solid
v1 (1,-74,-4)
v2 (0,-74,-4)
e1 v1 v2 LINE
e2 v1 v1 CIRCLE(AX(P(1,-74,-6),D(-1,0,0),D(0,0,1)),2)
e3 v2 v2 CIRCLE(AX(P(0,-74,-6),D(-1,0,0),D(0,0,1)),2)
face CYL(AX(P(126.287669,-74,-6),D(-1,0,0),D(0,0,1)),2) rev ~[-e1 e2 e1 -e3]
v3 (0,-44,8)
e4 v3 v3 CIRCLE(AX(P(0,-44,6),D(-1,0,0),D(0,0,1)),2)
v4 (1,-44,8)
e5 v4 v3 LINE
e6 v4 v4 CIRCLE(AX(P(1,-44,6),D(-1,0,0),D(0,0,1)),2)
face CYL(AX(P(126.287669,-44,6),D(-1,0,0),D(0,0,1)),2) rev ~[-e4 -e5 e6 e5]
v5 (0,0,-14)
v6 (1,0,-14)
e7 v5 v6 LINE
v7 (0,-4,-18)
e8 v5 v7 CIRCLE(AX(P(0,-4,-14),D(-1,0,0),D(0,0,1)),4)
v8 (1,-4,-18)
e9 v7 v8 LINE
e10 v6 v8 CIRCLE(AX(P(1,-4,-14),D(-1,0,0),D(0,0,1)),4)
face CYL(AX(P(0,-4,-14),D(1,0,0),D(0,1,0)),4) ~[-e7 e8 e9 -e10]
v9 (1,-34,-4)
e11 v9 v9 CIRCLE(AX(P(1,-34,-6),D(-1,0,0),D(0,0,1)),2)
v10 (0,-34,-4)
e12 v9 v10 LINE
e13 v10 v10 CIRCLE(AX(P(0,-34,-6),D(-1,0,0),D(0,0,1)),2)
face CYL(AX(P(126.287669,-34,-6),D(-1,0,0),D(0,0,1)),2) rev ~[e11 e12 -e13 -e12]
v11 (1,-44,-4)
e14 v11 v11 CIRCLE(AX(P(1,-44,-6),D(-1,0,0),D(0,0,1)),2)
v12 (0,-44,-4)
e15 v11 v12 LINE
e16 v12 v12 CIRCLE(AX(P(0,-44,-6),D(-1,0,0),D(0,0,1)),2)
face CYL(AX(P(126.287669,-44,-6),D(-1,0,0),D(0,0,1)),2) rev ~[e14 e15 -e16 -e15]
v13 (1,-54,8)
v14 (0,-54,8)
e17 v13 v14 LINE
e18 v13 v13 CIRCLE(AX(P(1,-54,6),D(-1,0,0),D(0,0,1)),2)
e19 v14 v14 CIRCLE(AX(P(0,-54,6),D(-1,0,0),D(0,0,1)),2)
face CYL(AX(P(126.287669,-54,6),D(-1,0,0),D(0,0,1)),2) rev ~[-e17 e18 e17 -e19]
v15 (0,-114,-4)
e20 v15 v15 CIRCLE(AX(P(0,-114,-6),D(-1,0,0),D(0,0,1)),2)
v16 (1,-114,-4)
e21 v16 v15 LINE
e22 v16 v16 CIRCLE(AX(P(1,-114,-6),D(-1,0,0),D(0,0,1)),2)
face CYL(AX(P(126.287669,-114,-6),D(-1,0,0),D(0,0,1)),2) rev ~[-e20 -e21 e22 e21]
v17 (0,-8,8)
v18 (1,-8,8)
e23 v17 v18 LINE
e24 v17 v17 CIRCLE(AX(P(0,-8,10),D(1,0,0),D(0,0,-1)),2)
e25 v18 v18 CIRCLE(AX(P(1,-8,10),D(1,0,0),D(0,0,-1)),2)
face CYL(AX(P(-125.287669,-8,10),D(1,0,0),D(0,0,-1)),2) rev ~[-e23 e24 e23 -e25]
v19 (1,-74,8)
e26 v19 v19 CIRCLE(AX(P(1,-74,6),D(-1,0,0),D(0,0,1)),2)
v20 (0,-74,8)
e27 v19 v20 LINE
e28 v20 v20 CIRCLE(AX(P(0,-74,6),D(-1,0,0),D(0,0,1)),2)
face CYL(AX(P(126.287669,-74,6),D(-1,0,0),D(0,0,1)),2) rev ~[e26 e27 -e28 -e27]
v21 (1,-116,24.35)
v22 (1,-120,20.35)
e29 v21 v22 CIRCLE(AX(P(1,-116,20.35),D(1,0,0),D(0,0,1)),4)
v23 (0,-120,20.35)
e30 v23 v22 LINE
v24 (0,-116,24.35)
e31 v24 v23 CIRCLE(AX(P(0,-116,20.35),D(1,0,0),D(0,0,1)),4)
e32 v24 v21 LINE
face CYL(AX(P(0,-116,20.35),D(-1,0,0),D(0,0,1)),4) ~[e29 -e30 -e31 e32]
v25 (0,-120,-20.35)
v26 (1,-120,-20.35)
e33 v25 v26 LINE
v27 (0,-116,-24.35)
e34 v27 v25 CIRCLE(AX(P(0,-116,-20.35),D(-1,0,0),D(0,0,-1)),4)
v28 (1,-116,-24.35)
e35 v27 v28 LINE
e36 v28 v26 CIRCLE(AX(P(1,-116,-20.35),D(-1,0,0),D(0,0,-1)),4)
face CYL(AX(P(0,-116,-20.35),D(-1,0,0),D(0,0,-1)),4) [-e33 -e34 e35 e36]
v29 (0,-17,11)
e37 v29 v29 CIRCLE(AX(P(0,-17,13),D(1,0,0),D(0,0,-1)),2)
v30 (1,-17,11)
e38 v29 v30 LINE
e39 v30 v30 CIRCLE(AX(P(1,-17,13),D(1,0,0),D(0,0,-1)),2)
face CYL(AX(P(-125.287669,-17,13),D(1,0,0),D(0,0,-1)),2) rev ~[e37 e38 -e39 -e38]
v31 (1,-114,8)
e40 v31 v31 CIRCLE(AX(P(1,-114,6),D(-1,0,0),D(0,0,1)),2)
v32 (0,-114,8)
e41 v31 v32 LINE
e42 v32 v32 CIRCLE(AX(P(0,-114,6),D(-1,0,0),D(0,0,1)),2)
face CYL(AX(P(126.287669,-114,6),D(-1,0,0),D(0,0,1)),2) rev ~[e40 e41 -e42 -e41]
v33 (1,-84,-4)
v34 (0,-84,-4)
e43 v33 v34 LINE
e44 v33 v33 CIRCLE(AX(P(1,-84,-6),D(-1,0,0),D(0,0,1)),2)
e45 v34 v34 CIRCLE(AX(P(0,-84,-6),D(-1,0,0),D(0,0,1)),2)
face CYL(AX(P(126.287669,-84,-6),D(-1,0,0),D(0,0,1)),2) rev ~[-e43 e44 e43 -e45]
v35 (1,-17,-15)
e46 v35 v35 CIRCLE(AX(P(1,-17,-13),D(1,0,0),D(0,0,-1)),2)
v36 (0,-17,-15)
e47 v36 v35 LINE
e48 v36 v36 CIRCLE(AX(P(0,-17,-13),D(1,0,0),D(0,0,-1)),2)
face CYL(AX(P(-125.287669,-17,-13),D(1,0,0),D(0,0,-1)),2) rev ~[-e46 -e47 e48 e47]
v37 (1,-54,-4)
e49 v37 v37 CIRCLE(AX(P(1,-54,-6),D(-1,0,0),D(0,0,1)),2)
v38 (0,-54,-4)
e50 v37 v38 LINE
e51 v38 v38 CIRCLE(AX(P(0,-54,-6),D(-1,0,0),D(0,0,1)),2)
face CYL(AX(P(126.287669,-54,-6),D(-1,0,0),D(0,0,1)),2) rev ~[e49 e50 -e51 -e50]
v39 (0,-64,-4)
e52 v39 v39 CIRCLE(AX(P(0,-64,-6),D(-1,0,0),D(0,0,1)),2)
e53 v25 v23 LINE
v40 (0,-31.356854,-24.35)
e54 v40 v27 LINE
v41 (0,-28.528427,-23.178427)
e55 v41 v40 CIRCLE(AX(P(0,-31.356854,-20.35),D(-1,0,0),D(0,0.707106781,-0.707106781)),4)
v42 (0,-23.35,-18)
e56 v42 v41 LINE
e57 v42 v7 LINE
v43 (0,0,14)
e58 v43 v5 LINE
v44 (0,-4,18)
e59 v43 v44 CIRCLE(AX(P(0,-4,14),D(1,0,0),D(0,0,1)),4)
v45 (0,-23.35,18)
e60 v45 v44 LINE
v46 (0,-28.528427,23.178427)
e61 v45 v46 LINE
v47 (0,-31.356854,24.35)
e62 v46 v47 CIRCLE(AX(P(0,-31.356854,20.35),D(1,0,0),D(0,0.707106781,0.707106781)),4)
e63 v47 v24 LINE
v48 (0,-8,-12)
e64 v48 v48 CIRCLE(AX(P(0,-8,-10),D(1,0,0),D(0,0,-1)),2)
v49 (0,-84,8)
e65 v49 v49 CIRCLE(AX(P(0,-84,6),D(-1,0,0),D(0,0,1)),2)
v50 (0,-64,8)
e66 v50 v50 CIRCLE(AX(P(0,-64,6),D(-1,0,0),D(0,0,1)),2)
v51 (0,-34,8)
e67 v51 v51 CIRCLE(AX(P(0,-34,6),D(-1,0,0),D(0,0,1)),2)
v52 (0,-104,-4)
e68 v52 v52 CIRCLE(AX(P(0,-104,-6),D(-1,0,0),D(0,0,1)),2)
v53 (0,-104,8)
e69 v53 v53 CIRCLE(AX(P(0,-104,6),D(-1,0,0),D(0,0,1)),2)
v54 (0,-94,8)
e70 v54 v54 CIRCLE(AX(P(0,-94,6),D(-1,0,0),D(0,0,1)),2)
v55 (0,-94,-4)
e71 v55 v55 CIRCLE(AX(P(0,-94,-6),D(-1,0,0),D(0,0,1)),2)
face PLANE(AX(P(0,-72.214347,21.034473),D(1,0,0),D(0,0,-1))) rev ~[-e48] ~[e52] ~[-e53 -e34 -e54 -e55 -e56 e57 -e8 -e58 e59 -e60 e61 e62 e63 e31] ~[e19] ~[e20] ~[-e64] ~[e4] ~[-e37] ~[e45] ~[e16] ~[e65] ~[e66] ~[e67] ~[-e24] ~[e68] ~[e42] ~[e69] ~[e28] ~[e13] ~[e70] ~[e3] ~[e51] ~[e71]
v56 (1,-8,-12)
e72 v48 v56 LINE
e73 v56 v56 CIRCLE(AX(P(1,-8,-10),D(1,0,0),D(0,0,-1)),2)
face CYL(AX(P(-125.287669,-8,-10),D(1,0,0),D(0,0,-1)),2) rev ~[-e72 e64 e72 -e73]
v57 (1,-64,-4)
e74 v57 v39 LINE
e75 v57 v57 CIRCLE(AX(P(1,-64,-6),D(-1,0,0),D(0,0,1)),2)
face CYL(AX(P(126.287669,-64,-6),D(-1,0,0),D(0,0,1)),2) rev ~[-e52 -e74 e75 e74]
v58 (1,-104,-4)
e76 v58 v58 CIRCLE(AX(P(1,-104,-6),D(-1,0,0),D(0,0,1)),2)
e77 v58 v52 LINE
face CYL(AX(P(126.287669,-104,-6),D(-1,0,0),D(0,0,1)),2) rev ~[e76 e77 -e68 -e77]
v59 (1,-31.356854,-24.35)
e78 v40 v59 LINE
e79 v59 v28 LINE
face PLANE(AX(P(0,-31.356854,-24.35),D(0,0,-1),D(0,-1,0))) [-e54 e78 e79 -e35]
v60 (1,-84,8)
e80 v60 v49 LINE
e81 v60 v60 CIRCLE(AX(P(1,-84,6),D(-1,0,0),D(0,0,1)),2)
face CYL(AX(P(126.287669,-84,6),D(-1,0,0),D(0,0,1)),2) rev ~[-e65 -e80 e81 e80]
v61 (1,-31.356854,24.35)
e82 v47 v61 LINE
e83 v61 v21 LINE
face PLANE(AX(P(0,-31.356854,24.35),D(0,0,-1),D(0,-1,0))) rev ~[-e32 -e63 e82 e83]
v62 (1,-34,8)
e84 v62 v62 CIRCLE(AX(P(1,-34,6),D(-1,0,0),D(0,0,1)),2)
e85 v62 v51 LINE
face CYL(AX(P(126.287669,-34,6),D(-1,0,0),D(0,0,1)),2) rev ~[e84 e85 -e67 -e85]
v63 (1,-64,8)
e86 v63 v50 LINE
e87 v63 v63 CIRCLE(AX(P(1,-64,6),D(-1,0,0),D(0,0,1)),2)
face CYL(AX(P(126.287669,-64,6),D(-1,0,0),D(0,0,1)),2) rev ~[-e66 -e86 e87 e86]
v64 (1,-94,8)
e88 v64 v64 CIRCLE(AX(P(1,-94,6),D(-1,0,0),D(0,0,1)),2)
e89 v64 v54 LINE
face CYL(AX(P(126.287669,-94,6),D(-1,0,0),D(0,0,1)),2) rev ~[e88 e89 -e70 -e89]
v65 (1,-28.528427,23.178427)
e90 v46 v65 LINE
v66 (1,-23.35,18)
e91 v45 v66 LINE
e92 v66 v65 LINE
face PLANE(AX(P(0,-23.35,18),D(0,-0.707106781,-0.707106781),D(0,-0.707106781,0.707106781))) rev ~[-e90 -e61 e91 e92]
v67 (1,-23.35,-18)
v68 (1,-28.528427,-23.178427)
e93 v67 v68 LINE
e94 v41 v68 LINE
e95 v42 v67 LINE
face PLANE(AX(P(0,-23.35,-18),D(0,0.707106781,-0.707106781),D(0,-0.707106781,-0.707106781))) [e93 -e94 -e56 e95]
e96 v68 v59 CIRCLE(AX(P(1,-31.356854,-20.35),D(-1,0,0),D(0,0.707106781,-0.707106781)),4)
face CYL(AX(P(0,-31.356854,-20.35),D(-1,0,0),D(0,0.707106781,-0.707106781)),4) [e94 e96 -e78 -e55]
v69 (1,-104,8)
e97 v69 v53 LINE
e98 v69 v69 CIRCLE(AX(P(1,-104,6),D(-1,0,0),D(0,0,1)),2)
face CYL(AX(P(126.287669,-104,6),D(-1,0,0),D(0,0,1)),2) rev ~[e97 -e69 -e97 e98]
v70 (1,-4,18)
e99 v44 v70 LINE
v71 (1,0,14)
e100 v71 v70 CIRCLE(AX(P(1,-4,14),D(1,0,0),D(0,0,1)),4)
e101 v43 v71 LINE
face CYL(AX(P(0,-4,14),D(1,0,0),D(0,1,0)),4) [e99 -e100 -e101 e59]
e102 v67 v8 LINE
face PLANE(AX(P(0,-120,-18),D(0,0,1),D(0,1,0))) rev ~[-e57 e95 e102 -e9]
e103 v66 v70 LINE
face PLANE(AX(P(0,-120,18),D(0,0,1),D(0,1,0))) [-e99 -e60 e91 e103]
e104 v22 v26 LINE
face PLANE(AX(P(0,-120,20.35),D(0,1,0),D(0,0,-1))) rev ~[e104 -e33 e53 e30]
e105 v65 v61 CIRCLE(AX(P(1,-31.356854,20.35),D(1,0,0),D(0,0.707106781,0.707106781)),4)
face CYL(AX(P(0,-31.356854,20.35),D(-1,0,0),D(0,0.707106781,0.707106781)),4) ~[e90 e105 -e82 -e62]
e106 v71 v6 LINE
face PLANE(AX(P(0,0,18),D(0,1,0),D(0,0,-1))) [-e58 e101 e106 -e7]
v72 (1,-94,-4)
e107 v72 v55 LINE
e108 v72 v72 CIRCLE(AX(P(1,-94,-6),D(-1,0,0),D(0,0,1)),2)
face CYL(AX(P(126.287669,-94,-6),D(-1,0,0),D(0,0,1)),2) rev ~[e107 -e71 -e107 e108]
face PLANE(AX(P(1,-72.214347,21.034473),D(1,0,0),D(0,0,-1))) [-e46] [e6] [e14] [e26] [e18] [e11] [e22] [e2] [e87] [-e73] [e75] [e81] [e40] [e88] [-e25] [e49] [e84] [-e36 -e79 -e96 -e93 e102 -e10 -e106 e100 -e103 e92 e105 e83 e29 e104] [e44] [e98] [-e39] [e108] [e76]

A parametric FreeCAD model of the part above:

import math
import FreeCAD as App
import Part
import Sketcher
from FreeCAD import Vector
Q = App.Units.Quantity


def edges_at(feature, points):
    """Names of the edges that pass closest to the given points."""
    edges = feature.Shape.Edges
    near = lambda p: min(range(len(edges)), key=lambda i: edges[i].distToShape(Part.Vertex(*p))[0])
    return sorted({f"Edge{near(p) + 1}" for p in points})

doc = App.newDocument("Part")
body = doc.addObject("PartDesign::Body", "Body")

# Sketch on YZ plane
sketch1 = doc.addObject("Sketcher::SketchObject", "Sketch")
body.addObject(sketch1)
sketch1.AttachmentSupport = (doc.YZ_Plane, [""])
sketch1.MapMode = "FlatFace"
sketch1.addGeometry(Part.LineSegment(Vector(0, 18, 0), Vector(-120, 18, 0)), False)
sketch1.addGeometry(Part.LineSegment(Vector(-120, 18, 0), Vector(-120, -18, 0)), False)
sketch1.addGeometry(Part.LineSegment(Vector(-120, -18, 0), Vector(0, -18, 0)), False)
sketch1.addGeometry(Part.LineSegment(Vector(0, -18, 0), Vector(0, 18, 0)), False)
sketch1.addConstraint(Sketcher.Constraint("Coincident", 0, 2, 1, 1))
sketch1.addConstraint(Sketcher.Constraint("Coincident", 1, 2, 2, 1))
sketch1.addConstraint(Sketcher.Constraint("Coincident", 2, 2, 3, 1))
sketch1.addConstraint(Sketcher.Constraint("Coincident", 3, 2, 0, 1))
sketch1.addConstraint(Sketcher.Constraint("Horizontal", 0))
sketch1.addConstraint(Sketcher.Constraint("Vertical", 1))
sketch1.addConstraint(Sketcher.Constraint("Horizontal", 2))
sketch1.addConstraint(Sketcher.Constraint("Vertical", 3))
sketch1.addConstraint(Sketcher.Constraint("Symmetric", 2, 2, 3, 2, -1, 1))
sketch1.addConstraint(Sketcher.Constraint("DistanceX", 0, 2, 0, 1, Q("120 mm")))
sketch1.addConstraint(Sketcher.Constraint("DistanceY", 1, 2, 1, 1, Q("36 mm")))
pad1 = doc.addObject("PartDesign::Pad", "Pad")
body.addObject(pad1)
pad1.Profile = sketch1
pad1.Length = 1

# Sketch on YZ plane
sketch2 = doc.addObject("Sketcher::SketchObject", "Sketch001")
body.addObject(sketch2)
sketch2.AttachmentSupport = (doc.YZ_Plane, [""])
sketch2.MapMode = "FlatFace"
sketch2.addGeometry(Part.Circle(Vector(-8, -10, 0), Vector(0, 0, 1), 2), False)
sketch2.addGeometry(Part.Circle(Vector(-8, 10, 0), Vector(0, 0, 1), 2), False)
sketch2.addConstraint(Sketcher.Constraint("Equal", 0, 1))
sketch2.addConstraint(Sketcher.Constraint("Symmetric", 0, 3, 1, 3, -1))
sketch2.addConstraint(Sketcher.Constraint("Diameter", 0, Q("4 mm")))
sketch2.addConstraint(Sketcher.Constraint("DistanceX", 0, 3, -1, 1, Q("8 mm")))
sketch2.addConstraint(Sketcher.Constraint("DistanceY", 0, 3, -1, 1, Q("10 mm")))
doc.recompute()
hole = doc.addObject("PartDesign::Hole", "Hole")
body.addObject(hole)
hole.Profile = sketch2
hole.ThreadType = "None"
hole.Diameter = 4
hole.DepthType = "ThroughAll"
hole.Reversed = True

# Sketch on YZ plane
sketch3 = doc.addObject("Sketcher::SketchObject", "Sketch002")
body.addObject(sketch3)
sketch3.AttachmentSupport = (doc.YZ_Plane, [""])
sketch3.MapMode = "FlatFace"
sketch3.addGeometry(Part.Circle(Vector(-17, -13, 0), Vector(0, 0, 1), 2), False)
sketch3.addGeometry(Part.Circle(Vector(-17, 13, 0), Vector(0, 0, 1), 2), False)
sketch3.addConstraint(Sketcher.Constraint("Equal", 0, 1))
sketch3.addConstraint(Sketcher.Constraint("Symmetric", 0, 3, 1, 3, -1))
sketch3.addConstraint(Sketcher.Constraint("Diameter", 0, Q("4 mm")))
sketch3.addConstraint(Sketcher.Constraint("DistanceX", 0, 3, -1, 1, Q("17 mm")))
sketch3.addConstraint(Sketcher.Constraint("DistanceY", 0, 3, -1, 1, Q("13 mm")))
doc.recompute()
hole2 = doc.addObject("PartDesign::Hole", "Hole001")
body.addObject(hole2)
hole2.Profile = sketch3
hole2.ThreadType = "None"
hole2.Diameter = 4
hole2.DepthType = "ThroughAll"
hole2.Reversed = True

# Sketch on YZ plane
sketch4 = doc.addObject("Sketcher::SketchObject", "Sketch003")
body.addObject(sketch4)
sketch4.AttachmentSupport = (doc.YZ_Plane, [""])
sketch4.MapMode = "FlatFace"
sketch4.AttachmentOffset = App.Placement(Vector(0, 0, 1), App.Rotation())
sketch4.addGeometry(Part.Circle(Vector(-114, -6, 0), Vector(0, 0, 1), 2), False)
sketch4.addGeometry(Part.Circle(Vector(-114, 6, 0), Vector(0, 0, 1), 2), False)
sketch4.addGeometry(Part.Circle(Vector(-104, -6, 0), Vector(0, 0, 1), 2), False)
sketch4.addGeometry(Part.Circle(Vector(-104, 6, 0), Vector(0, 0, 1), 2), False)
sketch4.addGeometry(Part.Circle(Vector(-94, -6, 0), Vector(0, 0, 1), 2), False)
sketch4.addGeometry(Part.Circle(Vector(-94, 6, 0), Vector(0, 0, 1), 2), False)
sketch4.addGeometry(Part.Circle(Vector(-84, -6, 0), Vector(0, 0, 1), 2), False)
sketch4.addGeometry(Part.Circle(Vector(-84, 6, 0), Vector(0, 0, 1), 2), False)
sketch4.addGeometry(Part.Circle(Vector(-74, -6, 0), Vector(0, 0, 1), 2), False)
sketch4.addGeometry(Part.Circle(Vector(-74, 6, 0), Vector(0, 0, 1), 2), False)
sketch4.addGeometry(Part.Circle(Vector(-64, -6, 0), Vector(0, 0, 1), 2), False)
sketch4.addGeometry(Part.Circle(Vector(-64, 6, 0), Vector(0, 0, 1), 2), False)
sketch4.addGeometry(Part.Circle(Vector(-54, -6, 0), Vector(0, 0, 1), 2), False)
sketch4.addGeometry(Part.Circle(Vector(-54, 6, 0), Vector(0, 0, 1), 2), False)
sketch4.addGeometry(Part.Circle(Vector(-44, -6, 0), Vector(0, 0, 1), 2), False)
sketch4.addGeometry(Part.Circle(Vector(-44, 6, 0), Vector(0, 0, 1), 2), False)
sketch4.addGeometry(Part.Circle(Vector(-34, -6, 0), Vector(0, 0, 1), 2), False)
sketch4.addGeometry(Part.Circle(Vector(-34, 6, 0), Vector(0, 0, 1), 2), False)
sketch4.addConstraint(Sketcher.Constraint("Equal", 0, 1))
sketch4.addConstraint(Sketcher.Constraint("Equal", 1, 2))
sketch4.addConstraint(Sketcher.Constraint("Equal", 2, 3))
sketch4.addConstraint(Sketcher.Constraint("Equal", 3, 4))
sketch4.addConstraint(Sketcher.Constraint("Equal", 4, 5))
sketch4.addConstraint(Sketcher.Constraint("Equal", 5, 6))
sketch4.addConstraint(Sketcher.Constraint("Equal", 6, 7))
sketch4.addConstraint(Sketcher.Constraint("Equal", 7, 8))
sketch4.addConstraint(Sketcher.Constraint("Equal", 8, 9))
sketch4.addConstraint(Sketcher.Constraint("Equal", 9, 10))
sketch4.addConstraint(Sketcher.Constraint("Equal", 10, 11))
sketch4.addConstraint(Sketcher.Constraint("Equal", 11, 12))
sketch4.addConstraint(Sketcher.Constraint("Equal", 12, 13))
sketch4.addConstraint(Sketcher.Constraint("Equal", 13, 14))
sketch4.addConstraint(Sketcher.Constraint("Equal", 14, 15))
sketch4.addConstraint(Sketcher.Constraint("Equal", 15, 16))
sketch4.addConstraint(Sketcher.Constraint("Equal", 16, 17))
sketch4.addConstraint(Sketcher.Constraint("Symmetric", 0, 3, 1, 3, -1))
sketch4.addConstraint(Sketcher.Constraint("Symmetric", 2, 3, 3, 3, -1))
sketch4.addConstraint(Sketcher.Constraint("Symmetric", 4, 3, 5, 3, -1))
sketch4.addConstraint(Sketcher.Constraint("Symmetric", 6, 3, 7, 3, -1))
sketch4.addConstraint(Sketcher.Constraint("Symmetric", 8, 3, 9, 3, -1))
sketch4.addConstraint(Sketcher.Constraint("Symmetric", 10, 3, 11, 3, -1))
sketch4.addConstraint(Sketcher.Constraint("Symmetric", 12, 3, 13, 3, -1))
sketch4.addConstraint(Sketcher.Constraint("Symmetric", 14, 3, 15, 3, -1))
sketch4.addConstraint(Sketcher.Constraint("Symmetric", 16, 3, 17, 3, -1))
sketch4.addConstraint(Sketcher.Constraint("Horizontal", 0, 3, 2, 3))
sketch4.addConstraint(Sketcher.Constraint("Horizontal", 2, 3, 4, 3))
sketch4.addConstraint(Sketcher.Constraint("Horizontal", 4, 3, 6, 3))
sketch4.addConstraint(Sketcher.Constraint("Horizontal", 6, 3, 8, 3))
sketch4.addConstraint(Sketcher.Constraint("Horizontal", 8, 3, 10, 3))
sketch4.addConstraint(Sketcher.Constraint("Horizontal", 10, 3, 12, 3))
sketch4.addConstraint(Sketcher.Constraint("Horizontal", 12, 3, 14, 3))
sketch4.addConstraint(Sketcher.Constraint("Horizontal", 14, 3, 16, 3))
sketch4.addConstraint(Sketcher.Constraint("Diameter", 0, Q("4 mm")))
sketch4.addConstraint(Sketcher.Constraint("DistanceX", 0, 3, -1, 1, Q("114 mm")))
sketch4.addConstraint(Sketcher.Constraint("DistanceY", 0, 3, -1, 1, Q("6 mm")))
sketch4.addConstraint(Sketcher.Constraint("DistanceX", 2, 3, -1, 1, Q("104 mm")))
sketch4.addConstraint(Sketcher.Constraint("DistanceX", 4, 3, -1, 1, Q("94 mm")))
sketch4.addConstraint(Sketcher.Constraint("DistanceX", 6, 3, -1, 1, Q("84 mm")))
sketch4.addConstraint(Sketcher.Constraint("DistanceX", 8, 3, -1, 1, Q("74 mm")))
sketch4.addConstraint(Sketcher.Constraint("DistanceX", 10, 3, -1, 1, Q("64 mm")))
sketch4.addConstraint(Sketcher.Constraint("DistanceX", 12, 3, -1, 1, Q("54 mm")))
sketch4.addConstraint(Sketcher.Constraint("DistanceX", 14, 3, -1, 1, Q("44 mm")))
sketch4.addConstraint(Sketcher.Constraint("DistanceX", 16, 3, -1, 1, Q("34 mm")))
doc.recompute()
hole3 = doc.addObject("PartDesign::Hole", "Hole002")
body.addObject(hole3)
hole3.Profile = sketch4
hole3.ThreadType = "None"
hole3.Diameter = 4
hole3.DepthType = "ThroughAll"

# Sketch on YZ plane
sketch5 = doc.addObject("Sketcher::SketchObject", "Sketch004")
body.addObject(sketch5)
sketch5.AttachmentSupport = (doc.YZ_Plane, [""])
sketch5.MapMode = "FlatFace"
sketch5.addGeometry(Part.LineSegment(Vector(-28.528427, 23.178427, 0), Vector(-23.35, 18, 0)), False)
sketch5.addGeometry(Part.LineSegment(Vector(-23.35, 18, 0), Vector(-120, 18, 0)), False)
sketch5.addGeometry(Part.LineSegment(Vector(-120, 18, 0), Vector(-120, 20.35, 0)), False)
sketch5.addGeometry(Part.ArcOfCircle(Part.Circle(Vector(-116, 20.35, 0), Vector(0, 0, 1), 4), math.radians(90), math.radians(180)), False)
sketch5.addGeometry(Part.LineSegment(Vector(-116, 24.35, 0), Vector(-31.356854, 24.35, 0)), False)
sketch5.addGeometry(Part.ArcOfCircle(Part.Circle(Vector(-31.356854, 20.35, 0), Vector(0, 0, 1), 4), math.radians(45), math.radians(90)), False)
sketch5.addGeometry(Part.LineSegment(Vector(-23.35, -18, 0), Vector(-28.528427, -23.178427, 0)), False)
sketch5.addGeometry(Part.ArcOfCircle(Part.Circle(Vector(-31.356854, -20.35, 0), Vector(0, 0, 1), 4), math.radians(-90), math.radians(-45)), False)
sketch5.addGeometry(Part.LineSegment(Vector(-31.356854, -24.35, 0), Vector(-116, -24.35, 0)), False)
sketch5.addGeometry(Part.ArcOfCircle(Part.Circle(Vector(-116, -20.35, 0), Vector(0, 0, 1), 4), math.radians(180), math.radians(270)), False)
sketch5.addGeometry(Part.LineSegment(Vector(-120, -20.35, 0), Vector(-120, -18, 0)), False)
sketch5.addGeometry(Part.LineSegment(Vector(-120, -18, 0), Vector(-23.35, -18, 0)), False)
sketch5.addConstraint(Sketcher.Constraint("Coincident", 0, 2, 1, 1))
sketch5.addConstraint(Sketcher.Constraint("Coincident", 1, 2, 2, 1))
sketch5.addConstraint(Sketcher.Constraint("Tangent", 2, 2, 3, 2))
sketch5.addConstraint(Sketcher.Constraint("Tangent", 3, 1, 4, 1))
sketch5.addConstraint(Sketcher.Constraint("Tangent", 4, 2, 5, 2))
sketch5.addConstraint(Sketcher.Constraint("Tangent", 5, 1, 0, 1))
sketch5.addConstraint(Sketcher.Constraint("Tangent", 6, 2, 7, 2))
sketch5.addConstraint(Sketcher.Constraint("Tangent", 7, 1, 8, 1))
sketch5.addConstraint(Sketcher.Constraint("Tangent", 8, 2, 9, 2))
sketch5.addConstraint(Sketcher.Constraint("Tangent", 9, 1, 10, 1))
sketch5.addConstraint(Sketcher.Constraint("Coincident", 10, 2, 11, 1))
sketch5.addConstraint(Sketcher.Constraint("Coincident", 11, 2, 6, 1))
sketch5.addConstraint(Sketcher.Constraint("Horizontal", 1))
sketch5.addConstraint(Sketcher.Constraint("Vertical", 2))
sketch5.addConstraint(Sketcher.Constraint("Horizontal", 4))
sketch5.addConstraint(Sketcher.Constraint("Horizontal", 8))
sketch5.addConstraint(Sketcher.Constraint("Vertical", 10))
sketch5.addConstraint(Sketcher.Constraint("Horizontal", 11))
sketch5.addConstraint(Sketcher.Constraint("Equal", 3, 5))
sketch5.addConstraint(Sketcher.Constraint("Equal", 5, 7))
sketch5.addConstraint(Sketcher.Constraint("Equal", 7, 9))
sketch5.addConstraint(Sketcher.Constraint("Symmetric", 5, 3, 7, 3, -1))
sketch5.addConstraint(Sketcher.Constraint("Symmetric", 1, 2, 10, 2, -1))
sketch5.addConstraint(Sketcher.Constraint("Perpendicular", 0, 6))
sketch5.addConstraint(Sketcher.Constraint("Vertical", 5, 1, 6, 2))
sketch5.addConstraint(Sketcher.Constraint("Radius", 3, Q("4 mm")))
sketch5.addConstraint(Sketcher.Constraint("DistanceX", 3, 3, -1, 1, Q("116 mm")))
sketch5.addConstraint(Sketcher.Constraint("DistanceY", -1, 1, 0, 2, Q("18 mm")))
sketch5.addConstraint(Sketcher.Constraint("DistanceX", 1, 2, 1, 1, Q("96.65 mm")))
sketch5.addConstraint(Sketcher.Constraint("DistanceY", 2, 1, 2, 2, Q("2.35 mm")))
pad2 = doc.addObject("PartDesign::Pad", "Pad001")
body.addObject(pad2)
pad2.Profile = sketch5
pad2.Length = 1
doc.recompute()

fillet = doc.addObject("PartDesign::Fillet", "Fillet")
body.addObject(fillet)
fillet.Base = (pad2, edges_at(pad2, [(0.5, 0, 18), (0.5, 0, -18)]))
fillet.Radius = 4

doc.recompute()
